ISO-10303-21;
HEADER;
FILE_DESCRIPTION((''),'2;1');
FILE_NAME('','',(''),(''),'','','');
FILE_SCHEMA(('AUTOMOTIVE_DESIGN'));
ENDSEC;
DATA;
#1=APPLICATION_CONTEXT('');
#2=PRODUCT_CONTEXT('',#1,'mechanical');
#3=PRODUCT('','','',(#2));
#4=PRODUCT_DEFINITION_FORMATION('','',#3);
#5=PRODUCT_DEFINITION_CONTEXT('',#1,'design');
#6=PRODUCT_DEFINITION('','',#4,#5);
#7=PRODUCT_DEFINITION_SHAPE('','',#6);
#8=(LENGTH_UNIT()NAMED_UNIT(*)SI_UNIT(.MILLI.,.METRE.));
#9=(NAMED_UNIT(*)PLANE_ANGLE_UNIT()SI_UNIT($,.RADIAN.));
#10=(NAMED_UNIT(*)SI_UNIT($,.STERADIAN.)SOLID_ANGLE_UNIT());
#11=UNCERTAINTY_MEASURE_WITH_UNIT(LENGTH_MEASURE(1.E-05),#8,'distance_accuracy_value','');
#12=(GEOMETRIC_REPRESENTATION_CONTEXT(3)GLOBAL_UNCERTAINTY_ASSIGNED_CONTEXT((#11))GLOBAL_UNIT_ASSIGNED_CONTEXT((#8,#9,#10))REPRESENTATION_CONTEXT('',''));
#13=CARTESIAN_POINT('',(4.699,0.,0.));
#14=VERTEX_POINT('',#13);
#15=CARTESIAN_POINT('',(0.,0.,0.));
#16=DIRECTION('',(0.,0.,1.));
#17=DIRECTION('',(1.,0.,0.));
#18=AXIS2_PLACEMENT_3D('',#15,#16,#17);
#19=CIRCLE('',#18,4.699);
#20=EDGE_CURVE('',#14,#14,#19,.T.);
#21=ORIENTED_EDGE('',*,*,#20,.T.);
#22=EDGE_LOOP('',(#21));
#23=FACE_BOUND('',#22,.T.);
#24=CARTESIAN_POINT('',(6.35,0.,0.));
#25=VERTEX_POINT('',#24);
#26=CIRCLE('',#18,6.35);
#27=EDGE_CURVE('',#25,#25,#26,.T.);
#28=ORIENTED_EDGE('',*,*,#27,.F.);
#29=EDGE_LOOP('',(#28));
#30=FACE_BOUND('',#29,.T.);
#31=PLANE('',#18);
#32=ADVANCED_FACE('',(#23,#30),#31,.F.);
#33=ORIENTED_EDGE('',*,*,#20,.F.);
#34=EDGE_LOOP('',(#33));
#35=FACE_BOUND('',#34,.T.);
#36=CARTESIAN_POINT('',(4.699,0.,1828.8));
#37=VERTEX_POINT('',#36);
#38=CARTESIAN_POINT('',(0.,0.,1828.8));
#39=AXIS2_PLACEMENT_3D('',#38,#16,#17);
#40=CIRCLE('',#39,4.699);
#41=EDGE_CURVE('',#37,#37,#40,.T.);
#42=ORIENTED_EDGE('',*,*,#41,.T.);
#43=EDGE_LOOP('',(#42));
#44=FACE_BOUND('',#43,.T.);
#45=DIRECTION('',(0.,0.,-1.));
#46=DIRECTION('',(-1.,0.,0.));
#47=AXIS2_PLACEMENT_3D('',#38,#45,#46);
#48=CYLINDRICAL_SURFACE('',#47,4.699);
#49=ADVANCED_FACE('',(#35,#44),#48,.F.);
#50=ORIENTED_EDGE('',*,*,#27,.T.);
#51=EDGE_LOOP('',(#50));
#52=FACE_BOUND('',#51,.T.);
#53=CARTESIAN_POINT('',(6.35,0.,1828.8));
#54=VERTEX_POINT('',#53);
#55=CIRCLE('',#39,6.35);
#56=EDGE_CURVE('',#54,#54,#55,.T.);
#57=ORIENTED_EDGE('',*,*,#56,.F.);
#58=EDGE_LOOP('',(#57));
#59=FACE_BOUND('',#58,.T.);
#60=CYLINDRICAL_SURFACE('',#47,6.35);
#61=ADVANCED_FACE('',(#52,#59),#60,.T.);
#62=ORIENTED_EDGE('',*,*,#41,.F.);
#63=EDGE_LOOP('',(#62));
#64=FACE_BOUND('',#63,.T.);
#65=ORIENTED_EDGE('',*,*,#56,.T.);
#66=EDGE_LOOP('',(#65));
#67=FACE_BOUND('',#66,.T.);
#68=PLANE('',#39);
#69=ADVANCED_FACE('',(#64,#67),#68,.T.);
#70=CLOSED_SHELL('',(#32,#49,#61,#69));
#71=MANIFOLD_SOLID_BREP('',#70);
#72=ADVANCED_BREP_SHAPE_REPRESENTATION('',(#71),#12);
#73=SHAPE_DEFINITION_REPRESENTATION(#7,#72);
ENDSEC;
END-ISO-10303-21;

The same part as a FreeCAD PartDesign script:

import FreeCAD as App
import Part
import Sketcher
from FreeCAD import Vector
Q = App.Units.Quantity

doc = App.newDocument("Part")
params = doc.addObject("Spreadsheet::Sheet", "Params")
for row, (alias, value) in enumerate([
    ("sketch1_diameter", "0.5 in"),
    ("sketch1_diameter2", "0.37 in"),
    ("pad1_length", "72 in"),
], start=1):
    params.set(f"A{row}", alias)
    params.set(f"B{row}", "=" + value)
    params.setAlias(f"B{row}", alias)

body = doc.addObject("PartDesign::Body", "Body")

# Sketch on XY plane
sketch1 = body.newObject("Sketcher::SketchObject", "Sketch")
sketch1.AttachmentSupport = (doc.getObject("XY_Plane"), [""])
sketch1.MapMode = "FlatFace"
sketch1.addGeometry([
    Part.Circle(Vector(0, 0, 0), Vector(0, 0, 1), 6.3),
    Part.Circle(Vector(0, 0, 0), Vector(0, 0, 1), 4.7),
], False)
sketch1.addConstraint([
    Sketcher.Constraint("Coincident", 0, 3, -1, 1),
    Sketcher.Constraint("Coincident", 1, 3, -1, 1),
    Sketcher.Constraint("Diameter", 0, Q("0.5 in")),
    Sketcher.Constraint("Diameter", 1, Q("0.37 in")),
])
sketch1.setExpression("Constraints[2]", "Params.sketch1_diameter")
sketch1.setExpression("Constraints[3]", "Params.sketch1_diameter2")
pad1 = body.newObject("PartDesign::Pad", "Pad")
pad1.Profile = sketch1
pad1.setExpression("Length", "Params.pad1_length")

doc.recompute()
